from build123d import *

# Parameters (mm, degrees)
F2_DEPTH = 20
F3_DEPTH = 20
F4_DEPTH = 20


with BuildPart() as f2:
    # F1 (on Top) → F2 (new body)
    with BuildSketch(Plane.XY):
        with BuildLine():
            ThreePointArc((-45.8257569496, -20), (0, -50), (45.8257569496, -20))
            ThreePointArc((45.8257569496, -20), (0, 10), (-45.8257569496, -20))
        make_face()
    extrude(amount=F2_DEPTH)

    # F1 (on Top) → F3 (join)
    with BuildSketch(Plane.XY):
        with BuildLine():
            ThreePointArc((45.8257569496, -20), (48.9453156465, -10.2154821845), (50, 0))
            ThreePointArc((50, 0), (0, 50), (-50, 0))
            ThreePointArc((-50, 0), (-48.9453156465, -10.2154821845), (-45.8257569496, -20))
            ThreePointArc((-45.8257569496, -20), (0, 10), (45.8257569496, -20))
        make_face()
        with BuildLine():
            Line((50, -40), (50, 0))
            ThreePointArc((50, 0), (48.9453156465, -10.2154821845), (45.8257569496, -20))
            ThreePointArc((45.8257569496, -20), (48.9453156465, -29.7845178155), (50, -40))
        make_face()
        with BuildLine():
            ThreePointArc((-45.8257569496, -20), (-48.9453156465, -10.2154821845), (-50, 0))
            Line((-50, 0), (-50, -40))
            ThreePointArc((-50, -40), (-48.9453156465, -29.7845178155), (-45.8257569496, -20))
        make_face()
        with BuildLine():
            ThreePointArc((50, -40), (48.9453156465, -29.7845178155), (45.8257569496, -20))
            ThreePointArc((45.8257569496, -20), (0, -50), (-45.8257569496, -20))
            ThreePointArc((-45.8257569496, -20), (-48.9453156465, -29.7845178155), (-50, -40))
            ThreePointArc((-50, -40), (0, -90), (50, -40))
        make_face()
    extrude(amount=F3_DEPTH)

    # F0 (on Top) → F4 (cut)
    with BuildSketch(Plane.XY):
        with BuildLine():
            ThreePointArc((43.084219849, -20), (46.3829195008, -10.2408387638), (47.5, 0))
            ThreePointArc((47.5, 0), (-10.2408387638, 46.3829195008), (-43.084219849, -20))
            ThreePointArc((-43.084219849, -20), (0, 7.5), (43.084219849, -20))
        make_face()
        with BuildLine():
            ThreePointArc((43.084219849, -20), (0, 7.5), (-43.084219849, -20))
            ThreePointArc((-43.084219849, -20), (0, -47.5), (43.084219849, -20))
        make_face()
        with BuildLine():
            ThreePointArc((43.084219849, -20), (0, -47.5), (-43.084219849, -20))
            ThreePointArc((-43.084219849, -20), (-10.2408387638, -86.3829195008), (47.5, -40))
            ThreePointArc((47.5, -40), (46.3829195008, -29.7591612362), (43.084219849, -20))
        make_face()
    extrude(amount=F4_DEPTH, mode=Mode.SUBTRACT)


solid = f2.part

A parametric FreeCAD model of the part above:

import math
import FreeCAD as App
import Part
import Sketcher

V = App.Vector

doc = App.newDocument("Part")
body = doc.addObject("PartDesign::Body", "Body")

# Sketch on XY plane
sketch1 = doc.addObject("Sketcher::SketchObject", "Sketch")
body.addObject(sketch1)
sketch1.AttachmentSupport = (doc.XY_Plane, [""])
sketch1.MapMode = "FlatFace"
sketch1.addGeometry([
    Part.ArcOfCircle(Part.Circle(V(0, 0, 0), V(0, 0, 1), 50), math.radians(-156), math.radians(-24)),
    Part.ArcOfCircle(Part.Circle(V(0, -40, 0), V(0, 0, 1), 50), math.radians(24), math.radians(156)),
], False)
sketch1.addConstraint([
    Sketcher.Constraint("Coincident", 0, 1, 1, 2),
    Sketcher.Constraint("Coincident", 1, 1, 0, 2),
    Sketcher.Constraint("Coincident", 0, 3, -1, 1),
    Sketcher.Constraint("Equal", 0, 1),
    Sketcher.Constraint("PointOnObject", 1, 3, -2),
    Sketcher.Constraint("Radius", 0, 50.0),
    Sketcher.Constraint("DistanceY", 1, 3, -1, 1, 40.0),
])
pad1 = doc.addObject("PartDesign::Pad", "Pad")
body.addObject(pad1)
pad1.Profile = sketch1
pad1.Length = 20

# Sketch on XY plane
sketch2 = doc.addObject("Sketcher::SketchObject", "Sketch001")
body.addObject(sketch2)
sketch2.AttachmentSupport = (doc.XY_Plane, [""])
sketch2.MapMode = "FlatFace"
sketch2.addGeometry([
    Part.ArcOfCircle(Part.Circle(V(0, 0, 0), V(0, 0, 1), 50), math.radians(0), math.radians(180)),  # 0
    Part.LineSegment(V(-50, 0, 0), V(-50, -40, 0)),  # 1
    Part.ArcOfCircle(Part.Circle(V(0, -40, 0), V(0, 0, 1), 50), math.radians(180), math.radians(360)),  # 2
    Part.LineSegment(V(50, -40, 0), V(50, 0, 0)),  # 3
    Part.ArcOfCircle(Part.Circle(V(0, -40, 0), V(0, 0, 1), 50), math.radians(24), math.radians(156)),  # 4
    Part.ArcOfCircle(Part.Circle(V(0, 0, 0), V(0, 0, 1), 50), math.radians(-156), math.radians(-24)),  # 5
], False)
sketch2.addConstraint([
    Sketcher.Constraint("Tangent", 0, 2, 1, 1),
    Sketcher.Constraint("Tangent", 1, 2, 2, 1),
    Sketcher.Constraint("Tangent", 2, 2, 3, 1),
    Sketcher.Constraint("Tangent", 3, 2, 0, 1),
    Sketcher.Constraint("Coincident", 4, 1, 5, 2),
    Sketcher.Constraint("Coincident", 5, 1, 4, 2),
    Sketcher.Constraint("Vertical", 1),
    Sketcher.Constraint("Vertical", 3),
    Sketcher.Constraint("Coincident", 0, 3, -1, 1),
    Sketcher.Constraint("Coincident", 5, 3, -1, 1),
    Sketcher.Constraint("Coincident", 4, 3, 2, 3),
    Sketcher.Constraint("Equal", 2, 4),
    Sketcher.Constraint("Equal", 4, 5),
    Sketcher.Constraint("Radius", 0, 50.0),
    Sketcher.Constraint("DistanceY", 1, 2, 1, 1, 40.0),
])
pad2 = doc.addObject("PartDesign::Pad", "Pad001")
body.addObject(pad2)
pad2.Profile = sketch2
pad2.Length = 20

# Sketch on XY plane
sketch3 = doc.addObject("Sketcher::SketchObject", "Sketch002")
body.addObject(sketch3)
sketch3.AttachmentSupport = (doc.XY_Plane, [""])
sketch3.MapMode = "FlatFace"
sketch3.addGeometry([
    Part.ArcOfCircle(Part.Circle(V(0, 0, 0), V(0, 0, 1), 47), math.radians(-25), math.radians(0)),
    Part.ArcOfCircle(Part.Circle(V(0, 0, 0), V(0, 0, 1), 48), math.radians(0), math.radians(205)),
    Part.ArcOfCircle(Part.Circle(V(0, -40, 0), V(0, 0, 1), 48), math.radians(155), math.radians(360)),
    Part.ArcOfCircle(Part.Circle(V(0, -40, 0), V(0, 0, 1), 47), math.radians(0), math.radians(25)),
], False)
sketch3.addConstraint([
    Sketcher.Constraint("Tangent", 0, 2, 1, 1),
    Sketcher.Constraint("Coincident", 1, 2, 2, 1),
    Sketcher.Constraint("Tangent", 2, 2, 3, 1),
    Sketcher.Constraint("Coincident", 3, 2, 0, 1),
    Sketcher.Constraint("Coincident", 0, 3, -1, 1),
    Sketcher.Constraint("Equal", 0, 1),
    Sketcher.Constraint("Equal", 1, 2),
    Sketcher.Constraint("Equal", 2, 3),
    Sketcher.Constraint("PointOnObject", 2, 3, -2),
    Sketcher.Constraint("PointOnObject", 0, 2, -1),
    Sketcher.Constraint("Horizontal", 3, 3, 2, 2),
    Sketcher.Constraint("Radius", 0, 47.5),
    Sketcher.Constraint("DistanceY", 2, 3, -1, 1, 40.0),
])
pocket1 = doc.addObject("PartDesign::Pocket", "Pocket")
body.addObject(pocket1)
pocket1.Profile = sketch3
pocket1.Length = 20
pocket1.Reversed = True

doc.recompute()
